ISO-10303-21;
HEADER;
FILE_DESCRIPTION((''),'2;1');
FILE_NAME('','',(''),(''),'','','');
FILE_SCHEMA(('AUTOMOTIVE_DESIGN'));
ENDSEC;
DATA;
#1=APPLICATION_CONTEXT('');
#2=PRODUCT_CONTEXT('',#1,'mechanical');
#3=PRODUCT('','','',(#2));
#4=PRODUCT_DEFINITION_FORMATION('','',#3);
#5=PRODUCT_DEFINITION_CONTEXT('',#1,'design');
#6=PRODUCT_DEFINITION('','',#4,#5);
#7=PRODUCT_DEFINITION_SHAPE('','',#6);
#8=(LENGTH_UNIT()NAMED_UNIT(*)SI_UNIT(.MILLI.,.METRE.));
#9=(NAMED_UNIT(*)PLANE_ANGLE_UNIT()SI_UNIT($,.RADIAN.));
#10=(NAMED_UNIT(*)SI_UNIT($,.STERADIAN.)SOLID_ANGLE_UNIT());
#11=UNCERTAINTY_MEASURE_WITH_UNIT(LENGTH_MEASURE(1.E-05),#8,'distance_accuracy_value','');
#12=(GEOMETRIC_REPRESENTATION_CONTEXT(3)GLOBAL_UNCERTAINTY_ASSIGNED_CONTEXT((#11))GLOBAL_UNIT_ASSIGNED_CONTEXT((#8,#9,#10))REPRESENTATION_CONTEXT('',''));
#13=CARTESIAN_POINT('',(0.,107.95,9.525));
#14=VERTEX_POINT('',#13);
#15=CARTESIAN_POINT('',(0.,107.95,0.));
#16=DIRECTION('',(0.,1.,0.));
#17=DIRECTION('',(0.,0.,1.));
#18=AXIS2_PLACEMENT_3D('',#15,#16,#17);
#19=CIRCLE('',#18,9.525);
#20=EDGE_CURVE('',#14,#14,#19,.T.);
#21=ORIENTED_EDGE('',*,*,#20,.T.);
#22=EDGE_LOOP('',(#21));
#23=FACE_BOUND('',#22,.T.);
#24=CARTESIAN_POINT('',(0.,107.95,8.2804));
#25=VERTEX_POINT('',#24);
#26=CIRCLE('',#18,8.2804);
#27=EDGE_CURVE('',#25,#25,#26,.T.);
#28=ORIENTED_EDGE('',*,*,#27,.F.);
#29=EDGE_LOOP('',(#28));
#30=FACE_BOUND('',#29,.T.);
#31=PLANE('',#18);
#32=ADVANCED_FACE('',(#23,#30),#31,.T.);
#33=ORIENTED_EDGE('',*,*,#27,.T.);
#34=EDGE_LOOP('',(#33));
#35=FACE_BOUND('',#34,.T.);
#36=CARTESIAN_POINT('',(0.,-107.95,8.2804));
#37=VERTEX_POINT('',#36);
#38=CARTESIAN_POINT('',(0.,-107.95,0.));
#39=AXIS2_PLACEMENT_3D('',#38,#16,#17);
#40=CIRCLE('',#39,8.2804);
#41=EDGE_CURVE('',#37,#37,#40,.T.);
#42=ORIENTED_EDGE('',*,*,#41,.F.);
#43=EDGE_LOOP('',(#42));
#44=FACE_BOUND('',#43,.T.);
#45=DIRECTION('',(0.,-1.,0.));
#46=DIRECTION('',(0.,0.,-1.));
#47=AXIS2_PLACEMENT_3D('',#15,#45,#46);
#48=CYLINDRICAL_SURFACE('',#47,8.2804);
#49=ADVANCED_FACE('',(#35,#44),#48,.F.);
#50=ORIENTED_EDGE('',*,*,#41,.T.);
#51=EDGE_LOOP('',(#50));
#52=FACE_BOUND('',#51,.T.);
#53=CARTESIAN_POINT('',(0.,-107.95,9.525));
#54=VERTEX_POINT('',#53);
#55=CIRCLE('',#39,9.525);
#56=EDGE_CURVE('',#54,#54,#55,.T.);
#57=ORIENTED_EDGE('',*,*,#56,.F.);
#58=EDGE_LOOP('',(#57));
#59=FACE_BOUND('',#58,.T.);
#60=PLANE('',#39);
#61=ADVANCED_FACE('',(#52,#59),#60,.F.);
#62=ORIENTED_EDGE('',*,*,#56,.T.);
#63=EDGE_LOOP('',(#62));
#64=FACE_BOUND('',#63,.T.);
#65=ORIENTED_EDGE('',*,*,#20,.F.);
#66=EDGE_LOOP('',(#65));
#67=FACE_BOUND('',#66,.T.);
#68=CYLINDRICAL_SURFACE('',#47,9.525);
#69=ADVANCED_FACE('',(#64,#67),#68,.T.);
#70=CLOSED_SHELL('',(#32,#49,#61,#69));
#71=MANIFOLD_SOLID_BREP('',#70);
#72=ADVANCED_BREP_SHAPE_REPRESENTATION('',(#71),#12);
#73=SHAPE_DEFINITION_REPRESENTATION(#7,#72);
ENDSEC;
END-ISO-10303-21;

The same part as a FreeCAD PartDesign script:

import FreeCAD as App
import Part
import Sketcher
Q = App.Units.Quantity

doc = App.newDocument("Part")
params = doc.addObject("Spreadsheet::Sheet", "Params")
for row, (alias, value) in enumerate([
    ("sketch1_diameter", "0.75 in"),
    ("sketch1_diameter2", "0.652 in"),
    ("pad1_length", "8.5 in"),
], start=1):
    params.set(f"A{row}", alias)
    params.set(f"B{row}", "=" + value)
    params.setAlias(f"B{row}", alias)

body = doc.addObject("PartDesign::Body", "Body")

sketch1 = body.newObject("Sketcher::SketchObject", "Sketch")
sketch1.AttachmentSupport = (doc.getObject("XZ_Plane"), [""])
sketch1.MapMode = "FlatFace"
sketch1.addGeometry([
    Part.Circle(App.Vector(0, 0, 0), App.Vector(0, 0, 1), 10),
    Part.Circle(App.Vector(0, 0, 0), App.Vector(0, 0, 1), 8),
], False)
sketch1.addConstraint([
    Sketcher.Constraint("Coincident", 0, 3, -1, 1),
    Sketcher.Constraint("Coincident", 1, 3, -1, 1),
    Sketcher.Constraint("Diameter", 0, Q("0.75 in")),
    Sketcher.Constraint("Diameter", 1, Q("0.652 in")),
])
sketch1.setExpression("Constraints[2]", "Params.sketch1_diameter")
sketch1.setExpression("Constraints[3]", "Params.sketch1_diameter2")
pad1 = body.newObject("PartDesign::Pad", "Pad")
pad1.Profile = sketch1
pad1.setExpression("Length", "Params.pad1_length")
pad1.Midplane = True

doc.recompute()
